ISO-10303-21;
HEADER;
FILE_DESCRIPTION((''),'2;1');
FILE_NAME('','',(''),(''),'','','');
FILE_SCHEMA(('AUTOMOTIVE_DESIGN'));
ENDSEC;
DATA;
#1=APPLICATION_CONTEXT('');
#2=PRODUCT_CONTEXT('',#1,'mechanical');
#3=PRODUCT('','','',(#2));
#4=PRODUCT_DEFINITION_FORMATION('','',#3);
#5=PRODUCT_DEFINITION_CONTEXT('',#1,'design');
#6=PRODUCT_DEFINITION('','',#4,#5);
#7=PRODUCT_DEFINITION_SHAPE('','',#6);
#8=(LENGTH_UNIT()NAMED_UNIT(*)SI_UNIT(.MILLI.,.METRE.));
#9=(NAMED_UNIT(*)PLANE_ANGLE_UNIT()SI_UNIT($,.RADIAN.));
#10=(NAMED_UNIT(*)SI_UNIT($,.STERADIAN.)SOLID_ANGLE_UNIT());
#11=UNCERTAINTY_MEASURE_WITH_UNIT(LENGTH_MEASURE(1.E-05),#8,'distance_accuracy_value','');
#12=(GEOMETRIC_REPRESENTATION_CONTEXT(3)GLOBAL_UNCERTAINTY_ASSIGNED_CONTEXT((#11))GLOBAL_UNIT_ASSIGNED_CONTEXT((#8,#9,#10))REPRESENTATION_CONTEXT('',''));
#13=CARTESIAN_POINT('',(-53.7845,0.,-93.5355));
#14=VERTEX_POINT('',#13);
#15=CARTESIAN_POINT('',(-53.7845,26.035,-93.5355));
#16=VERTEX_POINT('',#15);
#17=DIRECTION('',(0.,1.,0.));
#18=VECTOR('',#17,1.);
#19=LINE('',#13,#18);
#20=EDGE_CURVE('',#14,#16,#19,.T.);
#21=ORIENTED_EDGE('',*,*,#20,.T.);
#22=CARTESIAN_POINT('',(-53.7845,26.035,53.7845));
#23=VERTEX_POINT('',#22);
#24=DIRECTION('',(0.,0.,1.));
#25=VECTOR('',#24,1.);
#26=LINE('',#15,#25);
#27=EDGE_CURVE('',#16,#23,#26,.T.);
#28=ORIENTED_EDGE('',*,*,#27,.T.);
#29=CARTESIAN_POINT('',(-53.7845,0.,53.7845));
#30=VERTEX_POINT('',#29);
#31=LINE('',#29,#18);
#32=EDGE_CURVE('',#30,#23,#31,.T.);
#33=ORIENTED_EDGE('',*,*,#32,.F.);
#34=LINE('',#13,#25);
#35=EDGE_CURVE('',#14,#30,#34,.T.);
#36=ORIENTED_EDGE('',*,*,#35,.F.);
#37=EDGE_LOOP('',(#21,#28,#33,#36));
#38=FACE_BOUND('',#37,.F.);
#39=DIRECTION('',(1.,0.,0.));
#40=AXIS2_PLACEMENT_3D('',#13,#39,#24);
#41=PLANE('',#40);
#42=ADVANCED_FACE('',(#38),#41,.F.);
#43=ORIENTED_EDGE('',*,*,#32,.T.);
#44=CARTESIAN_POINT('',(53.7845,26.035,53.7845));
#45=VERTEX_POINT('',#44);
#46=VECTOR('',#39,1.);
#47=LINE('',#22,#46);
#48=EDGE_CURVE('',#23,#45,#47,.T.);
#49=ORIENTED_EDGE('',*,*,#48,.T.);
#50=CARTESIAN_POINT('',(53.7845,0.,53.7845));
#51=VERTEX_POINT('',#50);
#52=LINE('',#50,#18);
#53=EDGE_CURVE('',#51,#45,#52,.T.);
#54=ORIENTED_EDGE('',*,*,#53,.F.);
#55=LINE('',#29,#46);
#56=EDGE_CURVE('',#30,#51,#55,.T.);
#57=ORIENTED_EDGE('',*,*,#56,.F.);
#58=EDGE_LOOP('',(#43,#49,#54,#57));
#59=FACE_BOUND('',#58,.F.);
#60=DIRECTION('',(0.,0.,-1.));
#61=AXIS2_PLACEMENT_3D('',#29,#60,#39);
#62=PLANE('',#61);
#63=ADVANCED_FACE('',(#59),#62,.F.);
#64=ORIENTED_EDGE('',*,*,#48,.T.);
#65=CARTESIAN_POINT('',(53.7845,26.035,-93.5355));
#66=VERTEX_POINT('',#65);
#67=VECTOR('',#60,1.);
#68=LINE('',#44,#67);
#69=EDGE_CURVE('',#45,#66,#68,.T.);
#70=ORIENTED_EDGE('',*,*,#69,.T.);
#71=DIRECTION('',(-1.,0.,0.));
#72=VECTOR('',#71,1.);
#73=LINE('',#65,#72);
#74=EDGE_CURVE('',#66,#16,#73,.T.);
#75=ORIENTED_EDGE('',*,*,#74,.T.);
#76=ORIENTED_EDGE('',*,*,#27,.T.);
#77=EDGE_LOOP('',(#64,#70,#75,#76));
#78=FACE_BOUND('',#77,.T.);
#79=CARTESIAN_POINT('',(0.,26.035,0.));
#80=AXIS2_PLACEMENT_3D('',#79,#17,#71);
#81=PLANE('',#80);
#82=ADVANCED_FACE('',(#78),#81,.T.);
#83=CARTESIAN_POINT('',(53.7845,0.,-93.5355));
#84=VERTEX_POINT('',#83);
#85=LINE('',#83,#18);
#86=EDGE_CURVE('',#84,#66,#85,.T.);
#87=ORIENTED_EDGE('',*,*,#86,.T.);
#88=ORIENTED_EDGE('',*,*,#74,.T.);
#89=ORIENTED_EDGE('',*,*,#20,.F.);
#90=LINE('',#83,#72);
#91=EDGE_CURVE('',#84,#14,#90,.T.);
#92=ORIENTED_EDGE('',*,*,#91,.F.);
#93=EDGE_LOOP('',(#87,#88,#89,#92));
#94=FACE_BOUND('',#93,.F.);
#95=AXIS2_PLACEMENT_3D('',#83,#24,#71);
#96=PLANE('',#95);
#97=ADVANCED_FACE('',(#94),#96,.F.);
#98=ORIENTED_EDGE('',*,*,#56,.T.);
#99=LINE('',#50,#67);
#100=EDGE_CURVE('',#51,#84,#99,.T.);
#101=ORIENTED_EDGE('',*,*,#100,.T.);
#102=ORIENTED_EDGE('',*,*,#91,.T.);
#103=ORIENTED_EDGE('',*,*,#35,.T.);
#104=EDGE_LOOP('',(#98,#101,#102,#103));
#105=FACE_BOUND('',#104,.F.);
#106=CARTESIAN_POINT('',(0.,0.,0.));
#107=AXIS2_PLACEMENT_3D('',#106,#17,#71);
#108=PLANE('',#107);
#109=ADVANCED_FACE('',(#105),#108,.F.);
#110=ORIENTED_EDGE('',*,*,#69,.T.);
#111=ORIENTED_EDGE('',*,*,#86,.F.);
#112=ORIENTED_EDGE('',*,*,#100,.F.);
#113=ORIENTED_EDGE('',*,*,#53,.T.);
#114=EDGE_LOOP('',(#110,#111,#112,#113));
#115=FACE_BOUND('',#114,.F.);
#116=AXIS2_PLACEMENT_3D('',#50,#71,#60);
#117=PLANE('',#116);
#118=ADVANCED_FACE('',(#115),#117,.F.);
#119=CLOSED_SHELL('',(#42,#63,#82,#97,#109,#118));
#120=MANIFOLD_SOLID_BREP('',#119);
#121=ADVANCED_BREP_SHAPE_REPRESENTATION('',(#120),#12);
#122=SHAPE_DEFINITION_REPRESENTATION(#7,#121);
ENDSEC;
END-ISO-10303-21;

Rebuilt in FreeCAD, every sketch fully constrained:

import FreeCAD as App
import Part
import Sketcher
from FreeCAD import Vector
Q = App.Units.Quantity


def add_polygon(sketch, points):
    """Adds a closed chain of lines whose ends are joined by coincident constraints."""
    first, n = sketch.GeometryCount, len(points)
    for a, b in zip(points, points[1:] + points[:1]):
        sketch.addGeometry(Part.LineSegment(App.Vector(*a, 0), App.Vector(*b, 0)), False)
    for i in range(n):
        sketch.addConstraint(Sketcher.Constraint("Coincident", first + i, 2, first + (i + 1) % n, 1))

doc = App.newDocument("Part")
params = doc.addObject("Spreadsheet::Sheet", "Params")
for row, (alias, value) in enumerate([
    ("sketch1_height", "5.8 in"),
    ("sketch1_width", "4.235 in"),
    ("pad1_length", "1.025 in"),
], start=1):
    params.set(f"A{row}", alias)
    params.set(f"B{row}", "=" + value)
    params.setAlias(f"B{row}", alias)

body = doc.addObject("PartDesign::Body", "Body")

# Sketch on XZ plane
sketch1 = body.newObject("Sketcher::SketchObject", "Sketch")
sketch1.AttachmentSupport = (doc.getObject("XZ_Plane"), [""])
sketch1.MapMode = "FlatFace"
add_polygon(sketch1, [(-54, -94), (-54, 54), (54, 54), (54, -94)])  # lines 0-3
sketch1.addConstraint([
    Sketcher.Constraint("Vertical", 0),
    Sketcher.Constraint("Horizontal", 1),
    Sketcher.Constraint("Vertical", 2),
    Sketcher.Constraint("Horizontal", 3),
    Sketcher.Constraint("DistanceY", 0, 1, 0, 2, Q("5.8 in")),
    Sketcher.Constraint("DistanceX", 1, 1, 1, 2, Q("4.235 in")),
    Sketcher.Constraint("DistanceX", 0, 2, -1, 1, Q("2.1175 in")),
    Sketcher.Constraint("DistanceY", -1, 1, 0, 2, Q("2.1175 in")),
])
sketch1.setExpression("Constraints[8]", "Params.sketch1_height")
sketch1.setExpression("Constraints[9]", "Params.sketch1_width")
pad1 = body.newObject("PartDesign::Pad", "Pad")
pad1.Profile = sketch1
pad1.setExpression("Length", "Params.pad1_length")
pad1.Reversed = True

doc.recompute()
